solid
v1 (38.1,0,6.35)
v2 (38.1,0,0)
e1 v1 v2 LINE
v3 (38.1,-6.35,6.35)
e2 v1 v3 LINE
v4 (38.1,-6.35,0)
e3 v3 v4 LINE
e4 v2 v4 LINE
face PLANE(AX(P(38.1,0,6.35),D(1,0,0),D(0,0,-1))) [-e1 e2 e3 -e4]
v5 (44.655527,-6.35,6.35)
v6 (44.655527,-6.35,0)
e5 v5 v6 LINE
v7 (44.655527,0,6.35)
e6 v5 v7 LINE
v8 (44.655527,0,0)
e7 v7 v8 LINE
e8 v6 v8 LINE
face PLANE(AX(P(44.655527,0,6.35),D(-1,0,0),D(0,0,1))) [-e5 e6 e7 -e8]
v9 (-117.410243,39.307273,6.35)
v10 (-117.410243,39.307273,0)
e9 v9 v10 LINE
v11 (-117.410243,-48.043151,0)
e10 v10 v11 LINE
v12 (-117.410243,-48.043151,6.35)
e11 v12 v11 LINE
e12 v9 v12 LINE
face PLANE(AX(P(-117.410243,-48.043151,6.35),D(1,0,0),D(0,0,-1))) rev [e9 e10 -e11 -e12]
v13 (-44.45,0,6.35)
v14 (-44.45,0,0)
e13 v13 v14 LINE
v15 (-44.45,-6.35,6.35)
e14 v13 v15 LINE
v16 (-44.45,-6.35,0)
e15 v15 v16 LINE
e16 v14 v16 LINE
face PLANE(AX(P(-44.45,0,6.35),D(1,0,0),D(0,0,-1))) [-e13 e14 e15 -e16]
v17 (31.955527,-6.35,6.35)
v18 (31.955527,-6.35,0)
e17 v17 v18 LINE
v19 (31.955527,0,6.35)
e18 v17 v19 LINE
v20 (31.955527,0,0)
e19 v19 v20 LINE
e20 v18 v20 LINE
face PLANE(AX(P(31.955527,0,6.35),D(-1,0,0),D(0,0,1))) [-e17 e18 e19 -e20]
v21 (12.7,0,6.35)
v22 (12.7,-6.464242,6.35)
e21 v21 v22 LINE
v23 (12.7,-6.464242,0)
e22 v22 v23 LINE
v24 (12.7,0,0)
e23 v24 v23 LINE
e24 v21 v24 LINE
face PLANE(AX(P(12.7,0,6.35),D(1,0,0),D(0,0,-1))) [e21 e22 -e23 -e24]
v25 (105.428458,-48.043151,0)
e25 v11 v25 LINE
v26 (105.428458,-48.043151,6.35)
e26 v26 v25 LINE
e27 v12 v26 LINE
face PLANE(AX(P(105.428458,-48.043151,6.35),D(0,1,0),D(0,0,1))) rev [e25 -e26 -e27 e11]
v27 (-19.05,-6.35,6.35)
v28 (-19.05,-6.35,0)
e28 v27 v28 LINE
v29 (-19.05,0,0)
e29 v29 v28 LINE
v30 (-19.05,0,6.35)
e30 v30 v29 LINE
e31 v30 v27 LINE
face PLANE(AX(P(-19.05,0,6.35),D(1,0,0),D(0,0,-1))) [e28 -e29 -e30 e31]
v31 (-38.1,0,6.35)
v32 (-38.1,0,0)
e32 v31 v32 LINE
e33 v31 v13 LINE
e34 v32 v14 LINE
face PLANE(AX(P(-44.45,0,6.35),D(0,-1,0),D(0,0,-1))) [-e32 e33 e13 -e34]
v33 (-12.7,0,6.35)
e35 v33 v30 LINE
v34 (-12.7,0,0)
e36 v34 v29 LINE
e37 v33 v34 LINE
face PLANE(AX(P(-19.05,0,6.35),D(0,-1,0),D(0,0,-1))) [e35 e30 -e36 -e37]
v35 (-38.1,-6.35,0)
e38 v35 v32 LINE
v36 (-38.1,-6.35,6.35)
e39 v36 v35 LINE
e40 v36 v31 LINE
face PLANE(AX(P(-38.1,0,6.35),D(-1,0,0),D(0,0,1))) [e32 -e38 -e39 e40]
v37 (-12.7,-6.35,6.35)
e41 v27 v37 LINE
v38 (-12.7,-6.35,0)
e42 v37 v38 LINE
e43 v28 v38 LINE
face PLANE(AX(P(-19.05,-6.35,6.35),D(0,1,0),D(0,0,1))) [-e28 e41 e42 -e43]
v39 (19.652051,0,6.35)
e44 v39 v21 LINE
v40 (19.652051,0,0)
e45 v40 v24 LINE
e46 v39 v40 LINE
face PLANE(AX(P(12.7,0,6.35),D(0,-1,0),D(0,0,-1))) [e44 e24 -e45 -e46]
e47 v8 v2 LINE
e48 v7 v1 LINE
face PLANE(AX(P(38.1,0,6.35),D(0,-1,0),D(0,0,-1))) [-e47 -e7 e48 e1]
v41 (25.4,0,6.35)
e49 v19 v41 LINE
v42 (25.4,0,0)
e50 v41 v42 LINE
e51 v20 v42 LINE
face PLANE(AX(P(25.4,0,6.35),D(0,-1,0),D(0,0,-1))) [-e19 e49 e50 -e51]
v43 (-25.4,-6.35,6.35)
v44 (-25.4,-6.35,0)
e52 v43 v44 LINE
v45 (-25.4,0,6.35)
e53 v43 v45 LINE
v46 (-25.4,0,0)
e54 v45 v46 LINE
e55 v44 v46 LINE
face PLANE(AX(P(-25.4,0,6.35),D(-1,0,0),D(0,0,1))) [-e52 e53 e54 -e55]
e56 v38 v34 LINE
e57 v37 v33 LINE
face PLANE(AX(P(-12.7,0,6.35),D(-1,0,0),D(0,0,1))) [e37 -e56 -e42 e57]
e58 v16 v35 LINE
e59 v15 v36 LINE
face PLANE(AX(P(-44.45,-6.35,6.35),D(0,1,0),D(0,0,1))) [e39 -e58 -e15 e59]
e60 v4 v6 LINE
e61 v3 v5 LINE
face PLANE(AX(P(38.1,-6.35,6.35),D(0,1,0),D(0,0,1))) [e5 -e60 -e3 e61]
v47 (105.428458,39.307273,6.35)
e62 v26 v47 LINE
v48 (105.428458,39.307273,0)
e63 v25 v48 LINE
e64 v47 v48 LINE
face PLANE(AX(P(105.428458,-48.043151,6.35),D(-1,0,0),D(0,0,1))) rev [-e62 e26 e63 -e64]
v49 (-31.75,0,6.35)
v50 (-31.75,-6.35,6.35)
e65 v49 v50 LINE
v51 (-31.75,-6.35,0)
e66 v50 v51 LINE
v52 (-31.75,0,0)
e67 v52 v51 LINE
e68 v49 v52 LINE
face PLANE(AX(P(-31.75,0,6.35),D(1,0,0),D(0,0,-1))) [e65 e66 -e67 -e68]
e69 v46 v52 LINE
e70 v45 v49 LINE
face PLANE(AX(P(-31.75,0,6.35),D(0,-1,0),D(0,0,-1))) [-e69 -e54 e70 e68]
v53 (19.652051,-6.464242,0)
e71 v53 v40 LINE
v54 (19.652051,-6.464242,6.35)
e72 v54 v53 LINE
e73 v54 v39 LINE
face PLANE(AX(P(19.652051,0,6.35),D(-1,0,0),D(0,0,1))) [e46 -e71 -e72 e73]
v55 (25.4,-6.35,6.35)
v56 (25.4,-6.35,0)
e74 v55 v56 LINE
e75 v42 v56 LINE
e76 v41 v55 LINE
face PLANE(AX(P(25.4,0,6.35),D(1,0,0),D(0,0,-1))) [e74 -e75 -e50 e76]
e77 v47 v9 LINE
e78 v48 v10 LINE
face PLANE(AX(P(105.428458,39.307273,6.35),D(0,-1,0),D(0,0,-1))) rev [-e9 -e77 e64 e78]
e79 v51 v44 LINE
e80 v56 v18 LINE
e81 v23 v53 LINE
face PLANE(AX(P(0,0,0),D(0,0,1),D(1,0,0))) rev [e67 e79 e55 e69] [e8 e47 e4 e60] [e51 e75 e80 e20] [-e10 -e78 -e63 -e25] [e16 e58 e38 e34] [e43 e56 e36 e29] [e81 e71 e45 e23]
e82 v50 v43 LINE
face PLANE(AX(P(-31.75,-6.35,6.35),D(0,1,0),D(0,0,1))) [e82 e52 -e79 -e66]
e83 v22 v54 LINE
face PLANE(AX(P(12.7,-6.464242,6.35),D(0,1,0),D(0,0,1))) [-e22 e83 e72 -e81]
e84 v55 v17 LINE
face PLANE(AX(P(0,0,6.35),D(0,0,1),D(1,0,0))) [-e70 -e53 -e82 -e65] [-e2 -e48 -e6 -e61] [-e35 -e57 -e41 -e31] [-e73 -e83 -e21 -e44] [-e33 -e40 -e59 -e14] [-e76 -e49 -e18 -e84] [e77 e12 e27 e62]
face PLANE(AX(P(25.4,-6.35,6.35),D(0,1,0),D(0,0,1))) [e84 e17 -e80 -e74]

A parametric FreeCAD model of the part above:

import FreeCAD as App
import Part
import Sketcher

V = App.Vector
Q = App.Units.Quantity


def add_polygon(sketch, points):
    """Adds a closed chain of lines whose ends are joined by coincident constraints."""
    first, n = sketch.GeometryCount, len(points)
    for a, b in zip(points, points[1:] + points[:1]):
        sketch.addGeometry(Part.LineSegment(App.Vector(*a, 0), App.Vector(*b, 0)), False)
    for i in range(n):
        sketch.addConstraint(Sketcher.Constraint("Coincident", first + i, 2, first + (i + 1) % n, 1))

doc = App.newDocument("Part")
params = doc.addObject("Spreadsheet::Sheet", "Params")
for row, (alias, value) in enumerate([
    ("sketch1_width", "0.25 in"),
    ("pad1_length", "0.25 in"),
], start=1):
    params.set(f"A{row}", alias)
    params.set(f"B{row}", "=" + value)
    params.setAlias(f"B{row}", alias)

body = doc.addObject("PartDesign::Body", "Body")

# Sketch on XY plane
sketch1 = body.newObject("Sketcher::SketchObject", "Sketch")
sketch1.AttachmentSupport = (doc.getObject("XY_Plane"), [""])
sketch1.MapMode = "FlatFace"
add_polygon(sketch1, [(-117, 39), (-117, -48), (105, -48), (105, 39)])  # lines 0-3
add_polygon(sketch1, [(-38, -6), (-44, -6), (-44, 0), (-38, 0)])  # lines 4-7
add_polygon(sketch1, [(-25, -6), (-32, -6), (-32, 0), (-25, 0)])  # lines 8-11
add_polygon(sketch1, [(-13, -6), (-19, -6), (-19, 0), (-13, 0)])  # lines 12-15
add_polygon(sketch1, [(20, -6), (13, -6), (13, 0), (20, 0)])  # lines 16-19
add_polygon(sketch1, [(32, -6), (25, -6), (25, 0), (32, 0)])  # lines 20-23
add_polygon(sketch1, [(45, -6), (38, -6), (38, 0), (45, 0)])  # lines 24-27
sketch1.addConstraint([
    Sketcher.Constraint("Vertical", 0),
    Sketcher.Constraint("Horizontal", 1),
    Sketcher.Constraint("Vertical", 2),
    Sketcher.Constraint("Horizontal", 3),
    Sketcher.Constraint("Horizontal", 4),
    Sketcher.Constraint("Vertical", 5),
    Sketcher.Constraint("Horizontal", 6),
    Sketcher.Constraint("Vertical", 7),
    Sketcher.Constraint("Horizontal", 8),
    Sketcher.Constraint("Vertical", 9),
    Sketcher.Constraint("Horizontal", 10),
    Sketcher.Constraint("Vertical", 11),
    Sketcher.Constraint("Horizontal", 12),
    Sketcher.Constraint("Vertical", 13),
    Sketcher.Constraint("Horizontal", 14),
    Sketcher.Constraint("Vertical", 15),
    Sketcher.Constraint("Horizontal", 16),
    Sketcher.Constraint("Vertical", 17),
    Sketcher.Constraint("Horizontal", 18),
    Sketcher.Constraint("Vertical", 19),
    Sketcher.Constraint("Horizontal", 20),
    Sketcher.Constraint("Vertical", 21),
    Sketcher.Constraint("Horizontal", 22),
    Sketcher.Constraint("Vertical", 23),
    Sketcher.Constraint("Horizontal", 24),
    Sketcher.Constraint("Vertical", 25),
    Sketcher.Constraint("Horizontal", 26),
    Sketcher.Constraint("Vertical", 27),
    Sketcher.Constraint("Symmetric", 14, 2, 17, 2, -1, 1),
    Sketcher.Constraint("Symmetric", 10, 2, 21, 2, -1, 1),
    Sketcher.Constraint("Symmetric", 6, 2, 25, 2, -1, 1),
    Sketcher.Constraint("PointOnObject", 5, 2, -1),
    Sketcher.Constraint("PointOnObject", 9, 2, -1),
    Sketcher.Constraint("PointOnObject", 13, 2, -1),
    Sketcher.Constraint("Horizontal", 7, 2, 8, 2),
    Sketcher.Constraint("Horizontal", 11, 2, 12, 2),
    Sketcher.Constraint("Horizontal", 15, 2, 20, 2),
    Sketcher.Constraint("Horizontal", 23, 2, 24, 2),
    Sketcher.Constraint("Equal", 6, 8),
    Sketcher.Constraint("Equal", 10, 12),
    Sketcher.Constraint("Equal", 22, 24),
    Sketcher.Constraint("Equal", 14, 5),
    Sketcher.Constraint("DistanceX", 10, 2, -1, 1, Q("1 in")),
    Sketcher.Constraint("DistanceX", 15, 2, 16, 2, Q("1 in")),
    Sketcher.Constraint("DistanceX", 4, 2, 4, 1, Q("0.25 in")),
    Sketcher.Constraint("DistanceX", 6, 2, -1, 1, Q("1.5 in")),
    Sketcher.Constraint("DistanceX", 1, 1, 1, 2, Q("222.838701 mm")),
    Sketcher.Constraint("DistanceX", 16, 2, 16, 1, Q("6.952051 mm")),
    Sketcher.Constraint("DistanceY", 17, 1, 17, 2, Q("6.464242 mm")),
    Sketcher.Constraint("DistanceX", 20, 2, 20, 1, Q("6.555527 mm")),
    Sketcher.Constraint("DistanceY", 0, 2, 0, 1, Q("87.350425 mm")),
    Sketcher.Constraint("DistanceY", 0, 2, -1, 1, Q("48.043151 mm")),
    Sketcher.Constraint("DistanceX", -1, 1, 1, 2, Q("105.428458 mm")),
])
sketch1.setExpression("Constraints[72]", "Params.sketch1_width")
pad1 = body.newObject("PartDesign::Pad", "Pad")
pad1.Profile = sketch1
pad1.setExpression("Length", "Params.pad1_length")

doc.recompute()
